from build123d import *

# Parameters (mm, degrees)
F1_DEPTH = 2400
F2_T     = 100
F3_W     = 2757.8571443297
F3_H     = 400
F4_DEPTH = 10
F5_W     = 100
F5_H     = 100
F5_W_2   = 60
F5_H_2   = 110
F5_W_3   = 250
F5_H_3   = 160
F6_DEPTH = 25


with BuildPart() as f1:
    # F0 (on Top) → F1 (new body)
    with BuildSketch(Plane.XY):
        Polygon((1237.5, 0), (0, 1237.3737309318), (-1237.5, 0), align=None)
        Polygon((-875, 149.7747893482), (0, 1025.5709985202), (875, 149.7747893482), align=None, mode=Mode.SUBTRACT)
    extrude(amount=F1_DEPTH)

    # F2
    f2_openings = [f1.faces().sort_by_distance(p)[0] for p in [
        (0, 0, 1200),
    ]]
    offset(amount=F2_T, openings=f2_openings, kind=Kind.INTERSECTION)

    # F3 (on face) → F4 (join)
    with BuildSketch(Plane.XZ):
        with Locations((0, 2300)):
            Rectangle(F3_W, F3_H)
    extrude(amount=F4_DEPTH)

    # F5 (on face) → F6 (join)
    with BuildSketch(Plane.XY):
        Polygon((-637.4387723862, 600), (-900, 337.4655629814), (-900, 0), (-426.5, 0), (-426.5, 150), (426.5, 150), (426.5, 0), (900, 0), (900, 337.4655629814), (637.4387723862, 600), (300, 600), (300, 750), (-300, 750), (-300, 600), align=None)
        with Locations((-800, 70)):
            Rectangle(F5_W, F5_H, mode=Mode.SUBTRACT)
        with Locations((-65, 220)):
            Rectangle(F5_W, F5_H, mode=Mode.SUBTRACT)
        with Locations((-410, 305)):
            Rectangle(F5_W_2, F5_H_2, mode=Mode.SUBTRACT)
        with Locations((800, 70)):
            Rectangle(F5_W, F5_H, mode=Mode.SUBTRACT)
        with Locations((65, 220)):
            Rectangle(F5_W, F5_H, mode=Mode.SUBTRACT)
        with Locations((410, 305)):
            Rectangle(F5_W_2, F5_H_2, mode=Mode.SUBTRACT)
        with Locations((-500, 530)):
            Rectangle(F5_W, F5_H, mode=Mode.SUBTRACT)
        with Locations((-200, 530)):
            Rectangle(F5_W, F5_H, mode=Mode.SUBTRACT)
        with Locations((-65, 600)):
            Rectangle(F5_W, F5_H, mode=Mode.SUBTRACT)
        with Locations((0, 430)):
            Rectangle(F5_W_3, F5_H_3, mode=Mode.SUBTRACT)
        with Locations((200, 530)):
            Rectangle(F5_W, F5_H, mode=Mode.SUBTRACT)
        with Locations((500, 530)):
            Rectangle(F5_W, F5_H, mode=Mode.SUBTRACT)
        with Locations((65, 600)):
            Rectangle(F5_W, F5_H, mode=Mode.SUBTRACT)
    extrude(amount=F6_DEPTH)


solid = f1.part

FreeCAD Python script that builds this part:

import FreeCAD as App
import Part
import Sketcher


def faces_at(feature, points):
    """Names of the faces that lie closest to the given points."""
    faces = feature.Shape.Faces
    near = lambda p: min(range(len(faces)), key=lambda i: faces[i].distToShape(Part.Vertex(*p))[0])
    return sorted({f"Face{near(p) + 1}" for p in points})


def add_polygon(sketch, points):
    """Adds a closed chain of lines whose ends are joined by coincident constraints."""
    first, n = sketch.GeometryCount, len(points)
    for a, b in zip(points, points[1:] + points[:1]):
        sketch.addGeometry(Part.LineSegment(App.Vector(*a, 0), App.Vector(*b, 0)), False)
    for i in range(n):
        sketch.addConstraint(Sketcher.Constraint("Coincident", first + i, 2, first + (i + 1) % n, 1))

doc = App.newDocument("Part")
body = doc.addObject("PartDesign::Body", "Body")

sketch1 = doc.addObject("Sketcher::SketchObject", "Sketch")
body.addObject(sketch1)
sketch1.AttachmentSupport = (doc.XY_Plane, [""])
sketch1.MapMode = "FlatFace"
add_polygon(sketch1, [(1238, 0), (0, 1237), (-1238, 0)])
add_polygon(sketch1, [(875, 150), (-875, 150), (0, 1026)])
sketch1.addConstraint([
    Sketcher.Constraint("Horizontal", 2),
    Sketcher.Constraint("Horizontal", 3),
    Sketcher.Constraint("Symmetric", 1, 2, 2, 2, -1, 1),
    Sketcher.Constraint("PointOnObject", 0, 2, -2),
    Sketcher.Constraint("PointOnObject", 4, 2, -2),
    Sketcher.Constraint("Equal", 4, 5),
    Sketcher.Constraint("DistanceX", 2, 1, 2, 2, 2475.0),
    Sketcher.Constraint("DistanceX", 3, 2, 3, 1, 1750.0),
    Sketcher.Constraint("Distance", 0, 1750.0),
    Sketcher.Constraint("Distance", 4, 1238.0),
    Sketcher.Constraint("DistanceY", -1, 1, 4, 2, 1025.570999),
])
pad1 = doc.addObject("PartDesign::Pad", "Pad")
body.addObject(pad1)
pad1.Profile = sketch1
pad1.Length = 2400
doc.recompute()

thickness = doc.addObject("PartDesign::Thickness", "Thickness")
body.addObject(thickness)
thickness.Base = (pad1, faces_at(pad1, [(0, 0, 1200)]))
thickness.Value = 100
thickness.Reversed = False
thickness.Join = "Intersection"

sketch2 = doc.addObject("Sketcher::SketchObject", "Sketch001")
body.addObject(sketch2)
sketch2.AttachmentSupport = (doc.XZ_Plane, [""])
sketch2.MapMode = "FlatFace"
add_polygon(sketch2, [(-1379, 2500), (-1379, 2100), (1379, 2100), (1379, 2500)])
sketch2.addConstraint([
    Sketcher.Constraint("Vertical", 0),
    Sketcher.Constraint("Horizontal", 1),
    Sketcher.Constraint("Vertical", 2),
    Sketcher.Constraint("Horizontal", 3),
    Sketcher.Constraint("DistanceY", 0, 2, 0, 1, 400.0),
    Sketcher.Constraint("DistanceY", -1, 1, 0, 2, 2100.0),
    Sketcher.Constraint("DistanceX", 1, 1, 1, 2, 2757.857144),
    Sketcher.Constraint("DistanceX", 0, 2, -1, 1, 1378.928572),
])
pad2 = doc.addObject("PartDesign::Pad", "Pad001")
body.addObject(pad2)
pad2.Profile = sketch2
pad2.Length = 10

sketch3 = doc.addObject("Sketcher::SketchObject", "Sketch002")
body.addObject(sketch3)
sketch3.AttachmentSupport = (doc.XY_Plane, [""])
sketch3.MapMode = "FlatFace"
add_polygon(sketch3, [(-637, 600), (-900, 337), (-900, 0), (-426, 0), (-426, 150), (426, 150), (426, 0), (900, 0), (900, 337), (637, 600), (300, 600), (300, 750), (-300, 750), (-300, 600)])
add_polygon(sketch3, [(-750, 20), (-850, 20), (-850, 120), (-750, 120)])
add_polygon(sketch3, [(-15, 170), (-115, 170), (-115, 270), (-15, 270)])
add_polygon(sketch3, [(-380, 250), (-440, 250), (-440, 360), (-380, 360)])
add_polygon(sketch3, [(850, 20), (750, 20), (750, 120), (850, 120)])
add_polygon(sketch3, [(115, 170), (15, 170), (15, 270), (115, 270)])
add_polygon(sketch3, [(440, 250), (380, 250), (380, 360), (440, 360)])
add_polygon(sketch3, [(125, 350), (-125, 350), (-125, 510), (125, 510)])
add_polygon(sketch3, [(-450, 480), (-550, 480), (-550, 580), (-450, 580)])
add_polygon(sketch3, [(-150, 480), (-250, 480), (-250, 580), (-150, 580)])
add_polygon(sketch3, [(-15, 550), (-115, 550), (-115, 650), (-15, 650)])
add_polygon(sketch3, [(250, 480), (150, 480), (150, 580), (250, 580)])
add_polygon(sketch3, [(115, 550), (15, 550), (15, 650), (115, 650)])
add_polygon(sketch3, [(550, 480), (450, 480), (450, 580), (550, 580)])
sketch3.addConstraint([
    Sketcher.Constraint("Vertical", 1),
    Sketcher.Constraint("Horizontal", 2),
    Sketcher.Constraint("Vertical", 3),
    Sketcher.Constraint("Horizontal", 4),
    Sketcher.Constraint("Vertical", 5),
    Sketcher.Constraint("Horizontal", 6),
    Sketcher.Constraint("Vertical", 7),
    Sketcher.Constraint("Horizontal", 9),
    Sketcher.Constraint("Vertical", 10),
    Sketcher.Constraint("Horizontal", 11),
    Sketcher.Constraint("Vertical", 12),
    Sketcher.Constraint("Horizontal", 13),
    Sketcher.Constraint("Horizontal", 14),
    Sketcher.Constraint("Vertical", 15),
    Sketcher.Constraint("Horizontal", 16),
    Sketcher.Constraint("Vertical", 17),
    Sketcher.Constraint("Horizontal", 18),
    Sketcher.Constraint("Vertical", 19),
    Sketcher.Constraint("Horizontal", 20),
    Sketcher.Constraint("Vertical", 21),
    Sketcher.Constraint("Horizontal", 22),
    Sketcher.Constraint("Vertical", 23),
    Sketcher.Constraint("Horizontal", 24),
    Sketcher.Constraint("Vertical", 25),
    Sketcher.Constraint("Horizontal", 26),
    Sketcher.Constraint("Vertical", 27),
    Sketcher.Constraint("Horizontal", 28),
    Sketcher.Constraint("Vertical", 29),
    Sketcher.Constraint("Horizontal", 30),
    Sketcher.Constraint("Vertical", 31),
    Sketcher.Constraint("Horizontal", 32),
    Sketcher.Constraint("Vertical", 33),
    Sketcher.Constraint("Horizontal", 34),
    Sketcher.Constraint("Vertical", 35),
    Sketcher.Constraint("Horizontal", 36),
    Sketcher.Constraint("Vertical", 37),
    Sketcher.Constraint("Horizontal", 38),
    Sketcher.Constraint("Vertical", 39),
    Sketcher.Constraint("Horizontal", 40),
    Sketcher.Constraint("Vertical", 41),
    Sketcher.Constraint("Horizontal", 42),
    Sketcher.Constraint("Vertical", 43),
    Sketcher.Constraint("Horizontal", 44),
    Sketcher.Constraint("Vertical", 45),
    Sketcher.Constraint("Horizontal", 46),
    Sketcher.Constraint("Vertical", 47),
    Sketcher.Constraint("Horizontal", 48),
    Sketcher.Constraint("Vertical", 49),
    Sketcher.Constraint("Horizontal", 50),
    Sketcher.Constraint("Vertical", 51),
    Sketcher.Constraint("Horizontal", 52),
    Sketcher.Constraint("Vertical", 53),
    Sketcher.Constraint("Horizontal", 54),
    Sketcher.Constraint("Vertical", 55),
    Sketcher.Constraint("Horizontal", 56),
    Sketcher.Constraint("Vertical", 57),
    Sketcher.Constraint("Horizontal", 58),
    Sketcher.Constraint("Vertical", 59),
    Sketcher.Constraint("Horizontal", 60),
    Sketcher.Constraint("Vertical", 61),
    Sketcher.Constraint("Horizontal", 62),
    Sketcher.Constraint("Vertical", 63),
    Sketcher.Constraint("Horizontal", 64),
    Sketcher.Constraint("Vertical", 65),
    Sketcher.Constraint("Symmetric", 2, 2, 5, 2, -1, 1),
    Sketcher.Constraint("Symmetric", 1, 2, 6, 2, -2),
    Sketcher.Constraint("Symmetric", 9, 2, 12, 2, -2),
    Sketcher.Constraint("Symmetric", 17, 2, 26, 2, -2),
    Sketcher.Constraint("Symmetric", 15, 2, 28, 2, -2),
    Sketcher.Constraint("Symmetric", 21, 2, 30, 2, -2),
    Sketcher.Constraint("Symmetric", 19, 2, 32, 2, -2),
    Sketcher.Constraint("Symmetric", 25, 2, 34, 2, -2),
    Sketcher.Constraint("Symmetric", 23, 2, 36, 2, -2),
    Sketcher.Constraint("Symmetric", 49, 2, 54, 2, -2),
    Sketcher.Constraint("Symmetric", 47, 2, 56, 2, -2),
    Sketcher.Constraint("Symmetric", 53, 2, 58, 2, -2),
    Sketcher.Constraint("Symmetric", 51, 2, 60, 2, -2),
    Sketcher.Constraint("Symmetric", 45, 2, 62, 2, -2),
    Sketcher.Constraint("Symmetric", 43, 2, 64, 2, -2),
    Sketcher.Constraint("Horizontal", 0, 2, 7, 2),
    Sketcher.Constraint("Horizontal", 45, 2, 46, 2),
    Sketcher.Constraint("Horizontal", 44, 2, 47, 2),
    Sketcher.Constraint("Vertical", 19, 2, 50, 2),
    Sketcher.Constraint("Vertical", 21, 2, 52, 2),
    Sketcher.Constraint("Equal", 9, 13),
    Sketcher.Constraint("Equal", 16, 18),
    Sketcher.Constraint("Equal", 32, 42),
    Sketcher.Constraint("Equal", 44, 46),
    Sketcher.Constraint("Equal", 5, 10),
    Sketcher.Constraint("Equal", 64, 15),
    Sketcher.Constraint("Equal", 17, 19),
    Sketcher.Constraint("Equal", 33, 43),
    Sketcher.Constraint("Equal", 49, 51),
    Sketcher.Constraint("DistanceX", 4, 1, 4, 2, 853.0),
    Sketcher.Constraint("DistanceX", 11, 2, 11, 1, 600.0),
    Sketcher.Constraint("DistanceX", 14, 2, 14, 1, 100.0),
    Sketcher.Constraint("DistanceX", 22, 2, 22, 1, 60.0),
    Sketcher.Constraint("DistanceX", 38, 2, 38, 1, 250.0),
    Sketcher.Constraint("DistanceY", 3, 1, 3, 2, 150.0),
    Sketcher.Constraint("DistanceY", 23, 1, 23, 2, 110.0),
    Sketcher.Constraint("DistanceY", 39, 1, 39, 2, 160.0),
    Sketcher.Constraint("DistanceX", 2, 1, 2, 2, 473.5),
    Sketcher.Constraint("DistanceY", -1, 1, 8, 2, 600.0),
    Sketcher.Constraint("DistanceX", 14, 2, -1, 1, 850.0),
    Sketcher.Constraint("DistanceY", -1, 1, 14, 2, 20.0),
    Sketcher.Constraint("DistanceX", 18, 2, -1, 1, 115.0),
    Sketcher.Constraint("DistanceY", -1, 1, 18, 2, 170.0),
    Sketcher.Constraint("DistanceX", 22, 2, -1, 1, 440.0),
    Sketcher.Constraint("DistanceY", -1, 1, 22, 2, 250.0),
    Sketcher.Constraint("DistanceX", 38, 2, -1, 1, 125.0),
    Sketcher.Constraint("DistanceY", -1, 1, 38, 2, 350.0),
    Sketcher.Constraint("DistanceX", 42, 2, -1, 1, 550.0),
    Sketcher.Constraint("DistanceY", -1, 1, 42, 2, 480.0),
    Sketcher.Constraint("DistanceX", 46, 2, -1, 1, 250.0),
    Sketcher.Constraint("DistanceY", -1, 1, 50, 2, 550.0),
    Sketcher.Constraint("DistanceX", 9, 2, 9, 1, 337.438772),
    Sketcher.Constraint("DistanceY", 1, 2, 1, 1, 337.465563),
])
pad3 = doc.addObject("PartDesign::Pad", "Pad002")
body.addObject(pad3)
pad3.Profile = sketch3
pad3.Length = 25

doc.recompute()
